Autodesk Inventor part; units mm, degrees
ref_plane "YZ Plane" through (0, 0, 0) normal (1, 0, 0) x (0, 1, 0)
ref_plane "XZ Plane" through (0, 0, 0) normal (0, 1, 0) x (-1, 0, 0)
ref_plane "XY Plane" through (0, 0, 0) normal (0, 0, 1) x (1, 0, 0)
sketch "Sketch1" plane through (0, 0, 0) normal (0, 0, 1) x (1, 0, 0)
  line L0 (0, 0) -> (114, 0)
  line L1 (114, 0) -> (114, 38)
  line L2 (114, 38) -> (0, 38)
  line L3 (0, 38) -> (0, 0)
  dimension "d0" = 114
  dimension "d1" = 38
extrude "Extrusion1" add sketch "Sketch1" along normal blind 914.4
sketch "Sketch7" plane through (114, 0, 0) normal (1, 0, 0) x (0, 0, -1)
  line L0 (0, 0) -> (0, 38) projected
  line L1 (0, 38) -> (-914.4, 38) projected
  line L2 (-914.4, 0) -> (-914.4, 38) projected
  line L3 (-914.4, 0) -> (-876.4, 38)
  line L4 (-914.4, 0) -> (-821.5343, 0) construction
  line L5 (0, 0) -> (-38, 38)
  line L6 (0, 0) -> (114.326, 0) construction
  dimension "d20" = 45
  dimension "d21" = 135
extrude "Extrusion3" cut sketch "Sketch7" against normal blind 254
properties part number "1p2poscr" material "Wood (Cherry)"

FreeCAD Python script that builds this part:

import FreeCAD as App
import Part
import Sketcher
from FreeCAD import Vector
Q = App.Units.Quantity


def add_polygon(sketch, points):
    """Adds a closed chain of lines whose ends are joined by coincident constraints."""
    first, n = sketch.GeometryCount, len(points)
    for a, b in zip(points, points[1:] + points[:1]):
        sketch.addGeometry(Part.LineSegment(App.Vector(*a, 0), App.Vector(*b, 0)), False)
    for i in range(n):
        sketch.addConstraint(Sketcher.Constraint("Coincident", first + i, 2, first + (i + 1) % n, 1))

doc = App.newDocument("Part")
body = doc.addObject("PartDesign::Body", "Body")

# Sketch on XY plane
sketch1 = body.newObject("Sketcher::SketchObject", "Sketch")
sketch1.AttachmentSupport = (doc.getObject("XY_Plane"), [""])
sketch1.MapMode = "FlatFace"
add_polygon(sketch1, [(0, 38), (0, 0), (114, 0), (114, 38)])  # lines 0-3
sketch1.addConstraint(Sketcher.Constraint("Vertical", 0))
sketch1.addConstraint(Sketcher.Constraint("Horizontal", 1))
sketch1.addConstraint(Sketcher.Constraint("Vertical", 2))
sketch1.addConstraint(Sketcher.Constraint("Horizontal", 3))
sketch1.addConstraint(Sketcher.Constraint("Coincident", 0, 2, -1, 1))
sketch1.addConstraint(Sketcher.Constraint("DistanceX", 1, 1, 1, 2, Q("4.4882 in")))
sketch1.addConstraint(Sketcher.Constraint("DistanceY", 0, 2, 0, 1, Q("38 mm")))
pad1 = body.newObject("PartDesign::Pad", "Pad")
pad1.Profile = sketch1
pad1.Length = Q("36 in")

# Sketch on YZ plane
sketch2 = body.newObject("Sketcher::SketchObject", "Sketch001")
sketch2.AttachmentSupport = (doc.getObject("YZ_Plane"), [""])
sketch2.MapMode = "FlatFace"
sketch2.AttachmentOffset = App.Placement(Vector(0, 0, 4.488189 * 25.4), App.Rotation())
add_polygon(sketch2, [(38, 38), (0, 0), (38, 0)])  # lines 0-2
add_polygon(sketch2, [(0, 914), (38, 876), (38, 914)])  # lines 3-5
sketch2.addConstraint(Sketcher.Constraint("Horizontal", 1))
sketch2.addConstraint(Sketcher.Constraint("Vertical", 2))
sketch2.addConstraint(Sketcher.Constraint("Vertical", 4))
sketch2.addConstraint(Sketcher.Constraint("Horizontal", 5))
sketch2.addConstraint(Sketcher.Constraint("Coincident", 0, 2, -1, 1))
sketch2.addConstraint(Sketcher.Constraint("PointOnObject", 5, 2, -2))
sketch2.addConstraint(Sketcher.Constraint("Perpendicular", 0, 3))
sketch2.addConstraint(Sketcher.Constraint("Vertical", 2, 2, 3, 2))
sketch2.addConstraint(Sketcher.Constraint("Equal", 5, 2))
sketch2.addConstraint(Sketcher.Constraint("DistanceY", -1, 1, 4, 2, Q("36 in")))
sketch2.addConstraint(Sketcher.Constraint("DistanceX", 1, 1, 1, 2, Q("38 mm")))
pocket1 = body.newObject("PartDesign::Pocket", "Pocket")
pocket1.Profile = sketch2
pocket1.Length = Q("10 in")

doc.recompute()
